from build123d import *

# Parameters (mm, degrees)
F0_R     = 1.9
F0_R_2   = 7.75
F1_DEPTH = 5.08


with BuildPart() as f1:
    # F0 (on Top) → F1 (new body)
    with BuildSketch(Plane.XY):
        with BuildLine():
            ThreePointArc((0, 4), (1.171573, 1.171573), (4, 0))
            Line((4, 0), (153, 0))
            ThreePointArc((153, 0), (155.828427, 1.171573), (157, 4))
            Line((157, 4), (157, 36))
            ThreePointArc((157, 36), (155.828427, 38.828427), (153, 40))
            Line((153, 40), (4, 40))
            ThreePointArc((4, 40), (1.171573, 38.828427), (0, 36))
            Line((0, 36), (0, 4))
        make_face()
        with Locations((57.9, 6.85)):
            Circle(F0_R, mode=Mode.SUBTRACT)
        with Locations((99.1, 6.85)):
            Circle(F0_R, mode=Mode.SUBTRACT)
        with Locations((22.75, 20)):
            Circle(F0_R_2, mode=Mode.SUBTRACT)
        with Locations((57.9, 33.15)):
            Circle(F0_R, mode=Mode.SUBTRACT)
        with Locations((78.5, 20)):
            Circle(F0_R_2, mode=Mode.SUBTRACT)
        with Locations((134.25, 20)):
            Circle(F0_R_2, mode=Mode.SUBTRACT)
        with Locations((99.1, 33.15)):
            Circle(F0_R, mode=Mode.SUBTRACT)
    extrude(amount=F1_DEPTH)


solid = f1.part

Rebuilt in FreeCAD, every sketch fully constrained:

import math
import FreeCAD as App
import Part
import Sketcher
from FreeCAD import Vector

doc = App.newDocument("Part")
body = doc.addObject("PartDesign::Body", "Body")

# Sketch on XY plane
sketch1 = body.newObject("Sketcher::SketchObject", "Sketch")
sketch1.AttachmentSupport = (doc.getObject("XY_Plane"), [""])
sketch1.MapMode = "FlatFace"
sketch1.addGeometry(Part.ArcOfCircle(Part.Circle(Vector(4, 4, 0), Vector(0, 0, 1), 4), math.radians(-179.999994), math.radians(-90.000006)), False)
sketch1.addGeometry(Part.LineSegment(Vector(4, 0, 0), Vector(153, 0, 0)), False)
sketch1.addGeometry(Part.ArcOfCircle(Part.Circle(Vector(153, 4, 0), Vector(0, 0, 1), 4), math.radians(-89.999994), math.radians(-0.000006)), False)
sketch1.addGeometry(Part.LineSegment(Vector(157, 4, 0), Vector(157, 36, 0)), False)
sketch1.addGeometry(Part.ArcOfCircle(Part.Circle(Vector(153, 36, 0), Vector(0, 0, 1), 4), math.radians(0.000006), math.radians(89.999994)), False)
sketch1.addGeometry(Part.LineSegment(Vector(153, 40, 0), Vector(4, 40, 0)), False)
sketch1.addGeometry(Part.ArcOfCircle(Part.Circle(Vector(4, 36, 0), Vector(0, 0, 1), 4), math.radians(90.000006), math.radians(179.999994)), False)
sketch1.addGeometry(Part.LineSegment(Vector(0, 36, 0), Vector(0, 4, 0)), False)
sketch1.addGeometry(Part.Circle(Vector(57.9, 6.85, 0), Vector(0, 0, 1), 1.9), False)
sketch1.addGeometry(Part.Circle(Vector(99.1, 6.85, 0), Vector(0, 0, 1), 1.9), False)
sketch1.addGeometry(Part.Circle(Vector(22.75, 20, 0), Vector(0, 0, 1), 7.75), False)
sketch1.addGeometry(Part.Circle(Vector(57.9, 33.15, 0), Vector(0, 0, 1), 1.9), False)
sketch1.addGeometry(Part.Circle(Vector(78.5, 20, 0), Vector(0, 0, 1), 7.75), False)
sketch1.addGeometry(Part.Circle(Vector(134.25, 20, 0), Vector(0, 0, 1), 7.75), False)
sketch1.addGeometry(Part.Circle(Vector(99.1, 33.15, 0), Vector(0, 0, 1), 1.9), False)
sketch1.addConstraint(Sketcher.Constraint("Tangent", 0, 2, 1, 1))
sketch1.addConstraint(Sketcher.Constraint("Tangent", 1, 2, 2, 1))
sketch1.addConstraint(Sketcher.Constraint("Tangent", 2, 2, 3, 1))
sketch1.addConstraint(Sketcher.Constraint("Tangent", 3, 2, 4, 1))
sketch1.addConstraint(Sketcher.Constraint("Tangent", 4, 2, 5, 1))
sketch1.addConstraint(Sketcher.Constraint("Tangent", 5, 2, 6, 1))
sketch1.addConstraint(Sketcher.Constraint("Tangent", 6, 2, 7, 1))
sketch1.addConstraint(Sketcher.Constraint("Tangent", 7, 2, 0, 1))
sketch1.addConstraint(Sketcher.Constraint("Horizontal", 1))
sketch1.addConstraint(Sketcher.Constraint("Vertical", 3))
sketch1.addConstraint(Sketcher.Constraint("Horizontal", 5))
sketch1.addConstraint(Sketcher.Constraint("Vertical", 7))
sketch1.addConstraint(Sketcher.Constraint("Equal", 0, 2))
sketch1.addConstraint(Sketcher.Constraint("Equal", 2, 4))
sketch1.addConstraint(Sketcher.Constraint("Equal", 4, 6))
sketch1.addConstraint(Sketcher.Constraint("Equal", 8, 9))
sketch1.addConstraint(Sketcher.Constraint("Equal", 9, 11))
sketch1.addConstraint(Sketcher.Constraint("Equal", 10, 12))
sketch1.addConstraint(Sketcher.Constraint("Equal", 12, 13))
sketch1.addConstraint(Sketcher.Constraint("Equal", 11, 14))
sketch1.addConstraint(Sketcher.Constraint("PointOnObject", 0, 2, -1))
sketch1.addConstraint(Sketcher.Constraint("PointOnObject", 6, 2, -2))
sketch1.addConstraint(Sketcher.Constraint("Horizontal", 8, 3, 9, 3))
sketch1.addConstraint(Sketcher.Constraint("Horizontal", 10, 3, 12, 3))
sketch1.addConstraint(Sketcher.Constraint("Horizontal", 12, 3, 13, 3))
sketch1.addConstraint(Sketcher.Constraint("Horizontal", 11, 3, 14, 3))
sketch1.addConstraint(Sketcher.Constraint("Vertical", 8, 3, 11, 3))
sketch1.addConstraint(Sketcher.Constraint("Vertical", 9, 3, 14, 3))
sketch1.addConstraint(Sketcher.Constraint("Radius", 0, 4.0))
sketch1.addConstraint(Sketcher.Constraint("Diameter", 8, 3.8))
sketch1.addConstraint(Sketcher.Constraint("Diameter", 10, 15.5))
sketch1.addConstraint(Sketcher.Constraint("DistanceX", 1, 1, 1, 2, 149.0))
sketch1.addConstraint(Sketcher.Constraint("DistanceY", 3, 1, 3, 2, 32.0))
sketch1.addConstraint(Sketcher.Constraint("DistanceY", -1, 1, 10, 3, 20.0))
sketch1.addConstraint(Sketcher.Constraint("DistanceX", -1, 1, 8, 3, 57.9))
sketch1.addConstraint(Sketcher.Constraint("DistanceX", -1, 1, 9, 3, 99.1))
sketch1.addConstraint(Sketcher.Constraint("DistanceX", -1, 1, 12, 3, 78.5))
sketch1.addConstraint(Sketcher.Constraint("DistanceY", 8, 3, 11, 3, 26.3))
sketch1.addConstraint(Sketcher.Constraint("DistanceY", -1, 1, 8, 3, 6.85))
sketch1.addConstraint(Sketcher.Constraint("DistanceX", -1, 1, 10, 3, 22.75))
sketch1.addConstraint(Sketcher.Constraint("DistanceX", -1, 1, 13, 3, 134.25))
pad1 = body.newObject("PartDesign::Pad", "Pad")
pad1.Profile = sketch1
pad1.Length = 5.08

doc.recompute()
